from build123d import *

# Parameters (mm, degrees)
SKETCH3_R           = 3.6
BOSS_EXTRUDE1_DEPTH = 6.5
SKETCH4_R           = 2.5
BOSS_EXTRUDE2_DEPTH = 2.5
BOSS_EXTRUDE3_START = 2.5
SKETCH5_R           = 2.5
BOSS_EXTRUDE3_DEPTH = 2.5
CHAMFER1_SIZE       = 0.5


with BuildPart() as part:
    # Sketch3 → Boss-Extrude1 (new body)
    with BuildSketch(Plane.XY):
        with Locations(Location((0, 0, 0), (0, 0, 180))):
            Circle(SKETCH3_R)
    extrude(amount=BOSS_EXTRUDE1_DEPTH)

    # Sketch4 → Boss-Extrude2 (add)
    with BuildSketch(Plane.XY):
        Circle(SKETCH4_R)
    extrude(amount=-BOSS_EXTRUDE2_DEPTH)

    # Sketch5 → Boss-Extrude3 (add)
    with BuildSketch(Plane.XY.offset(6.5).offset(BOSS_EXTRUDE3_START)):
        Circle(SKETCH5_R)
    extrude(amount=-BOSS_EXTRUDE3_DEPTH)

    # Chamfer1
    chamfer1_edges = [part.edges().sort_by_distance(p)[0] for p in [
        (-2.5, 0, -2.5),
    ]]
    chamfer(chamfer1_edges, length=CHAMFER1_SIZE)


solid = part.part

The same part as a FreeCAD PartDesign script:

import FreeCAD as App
import Part
import Sketcher
from FreeCAD import Vector


def edges_at(feature, points):
    """Names of the edges that pass closest to the given points."""
    edges = feature.Shape.Edges
    near = lambda p: min(range(len(edges)), key=lambda i: edges[i].distToShape(Part.Vertex(*p))[0])
    return sorted({f"Edge{near(p) + 1}" for p in points})

doc = App.newDocument("Part")
body = doc.addObject("PartDesign::Body", "Body")

# Sketch on XY plane
sketch1 = body.newObject("Sketcher::SketchObject", "Sketch")
sketch1.AttachmentSupport = (doc.getObject("XY_Plane"), [""])
sketch1.MapMode = "FlatFace"
sketch1.addGeometry(Part.Circle(Vector(0, 0, 0), Vector(0, 0, 1), 3.6), False)
sketch1.addConstraint([
    Sketcher.Constraint("Coincident", 0, 3, -1, 1),
    Sketcher.Constraint("Diameter", 0, 7.2),
])
pad1 = body.newObject("PartDesign::Pad", "Pad")
pad1.Profile = sketch1
pad1.Length = 6.5

# Sketch on XY plane
sketch2 = body.newObject("Sketcher::SketchObject", "Sketch001")
sketch2.AttachmentSupport = (doc.getObject("XY_Plane"), [""])
sketch2.MapMode = "FlatFace"
sketch2.addGeometry(Part.Circle(Vector(0, 0, 0), Vector(0, 0, 1), 2.5), False)
sketch2.addConstraint([
    Sketcher.Constraint("Coincident", 0, 3, -1, 1),
    Sketcher.Constraint("Diameter", 0, 5.0),
])
pad2 = body.newObject("PartDesign::Pad", "Pad001")
pad2.Profile = sketch2
pad2.Length = 2.5
pad2.Reversed = True

# Sketch on XY plane
sketch3 = body.newObject("Sketcher::SketchObject", "Sketch002")
sketch3.AttachmentSupport = (doc.getObject("XY_Plane"), [""])
sketch3.MapMode = "FlatFace"
sketch3.AttachmentOffset = App.Placement(Vector(0, 0, 9), App.Rotation())
sketch3.addGeometry(Part.Circle(Vector(0, 0, 0), Vector(0, 0, 1), 2.5), False)
sketch3.addConstraint([
    Sketcher.Constraint("Coincident", 0, 3, -1, 1),
    Sketcher.Constraint("Diameter", 0, 5.0),
])
pad3 = body.newObject("PartDesign::Pad", "Pad002")
pad3.Profile = sketch3
pad3.Length = 2.5
pad3.Reversed = True
doc.recompute()

chamfer = body.newObject("PartDesign::Chamfer", "Chamfer")
chamfer.Base = (pad3, edges_at(pad3, [(-2.5, 0, -2.5)]))
chamfer.Size = 0.5

doc.recompute()
